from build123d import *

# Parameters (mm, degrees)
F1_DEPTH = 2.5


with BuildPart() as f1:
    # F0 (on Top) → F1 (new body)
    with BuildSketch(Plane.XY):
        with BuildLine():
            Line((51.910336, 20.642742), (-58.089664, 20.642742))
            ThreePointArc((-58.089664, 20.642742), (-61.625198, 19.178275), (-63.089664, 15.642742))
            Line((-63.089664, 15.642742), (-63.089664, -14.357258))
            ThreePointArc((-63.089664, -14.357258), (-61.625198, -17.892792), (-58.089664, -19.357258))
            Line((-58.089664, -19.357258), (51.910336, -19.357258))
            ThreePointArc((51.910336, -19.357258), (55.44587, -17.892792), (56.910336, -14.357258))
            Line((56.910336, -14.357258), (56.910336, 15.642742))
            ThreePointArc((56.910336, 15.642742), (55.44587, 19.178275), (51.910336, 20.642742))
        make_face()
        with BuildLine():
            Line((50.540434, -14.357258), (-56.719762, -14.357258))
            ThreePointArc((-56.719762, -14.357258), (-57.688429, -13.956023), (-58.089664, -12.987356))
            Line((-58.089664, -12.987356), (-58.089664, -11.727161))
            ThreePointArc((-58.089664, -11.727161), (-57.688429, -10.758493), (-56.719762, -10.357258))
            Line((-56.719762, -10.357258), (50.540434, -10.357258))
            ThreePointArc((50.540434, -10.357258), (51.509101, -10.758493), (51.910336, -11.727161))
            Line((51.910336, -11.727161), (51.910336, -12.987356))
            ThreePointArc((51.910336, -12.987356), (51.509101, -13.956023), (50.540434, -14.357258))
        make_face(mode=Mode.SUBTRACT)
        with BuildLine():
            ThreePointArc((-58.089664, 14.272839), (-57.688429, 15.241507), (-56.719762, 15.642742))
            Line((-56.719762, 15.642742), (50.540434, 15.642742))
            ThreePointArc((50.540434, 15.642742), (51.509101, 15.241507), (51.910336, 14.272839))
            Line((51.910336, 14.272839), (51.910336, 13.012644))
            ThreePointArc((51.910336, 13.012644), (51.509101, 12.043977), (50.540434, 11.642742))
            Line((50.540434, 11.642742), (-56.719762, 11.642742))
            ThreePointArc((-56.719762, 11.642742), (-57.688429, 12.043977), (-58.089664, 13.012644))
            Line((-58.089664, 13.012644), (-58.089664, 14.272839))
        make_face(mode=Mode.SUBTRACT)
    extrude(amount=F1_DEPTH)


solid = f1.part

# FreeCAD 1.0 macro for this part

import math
import FreeCAD as App
import Part
import Sketcher

V = App.Vector

doc = App.newDocument("Part")
body = doc.addObject("PartDesign::Body", "Body")

# Sketch on XY plane
sketch1 = body.newObject("Sketcher::SketchObject", "Sketch")
sketch1.AttachmentSupport = (doc.getObject("XY_Plane"), [""])
sketch1.MapMode = "FlatFace"
sketch1.addGeometry([
    Part.LineSegment(V(51.910336, 20.642742, 0), V(-58.089664, 20.642742, 0)),  # 0
    Part.ArcOfCircle(Part.Circle(V(-58.089663, 15.642741, 0), V(0, 0, 1), 5.000001), math.radians(90.000016), math.radians(179.999984)),  # 1
    Part.LineSegment(V(-63.089664, 15.642742, 0), V(-63.089664, -14.357258, 0)),  # 2
    Part.ArcOfCircle(Part.Circle(V(-58.089664, -14.357258, 0), V(0, 0, 1), 5), math.radians(179.999996), math.radians(270.000004)),  # 3
    Part.LineSegment(V(-58.089664, -19.357258, 0), V(51.910336, -19.357258, 0)),  # 4
    Part.ArcOfCircle(Part.Circle(V(51.910336, -14.357258, 0), V(0, 0, 1), 5), math.radians(-90.000004), math.radians(0.000004)),  # 5
    Part.LineSegment(V(56.910336, -14.357258, 0), V(56.910336, 15.642742, 0)),  # 6
    Part.ArcOfCircle(Part.Circle(V(51.910335, 15.642741, 0), V(0, 0, 1), 5.000001), math.radians(0.000016), math.radians(89.999984)),  # 7
    Part.ArcOfCircle(Part.Circle(V(50.540434, -12.987356, 0), V(0, 0, 1), 1.369902), math.radians(-90.000001), math.radians(0.000001)),  # 8
    Part.LineSegment(V(50.540434, -14.357258, 0), V(-56.719762, -14.357258, 0)),  # 9
    Part.ArcOfCircle(Part.Circle(V(-56.719762, -12.987356, 0), V(0, 0, 1), 1.369902), math.radians(179.999999), math.radians(270.000001)),  # 10
    Part.LineSegment(V(-58.089664, -12.987356, 0), V(-58.089664, -11.727161, 0)),  # 11
    Part.ArcOfCircle(Part.Circle(V(-56.719762, -11.72716, 0), V(0, 0, 1), 1.369902), math.radians(89.999999), math.radians(180.000043)),  # 12
    Part.LineSegment(V(-56.719762, -10.357258, 0), V(50.540434, -10.357258, 0)),  # 13
    Part.ArcOfCircle(Part.Circle(V(50.540434, -11.72716, 0), V(0, 0, 1), 1.369902), math.radians(-0.000043), math.radians(90.000001)),  # 14
    Part.LineSegment(V(51.910336, -11.727161, 0), V(51.910336, -12.987356, 0)),  # 15
    Part.LineSegment(V(-58.089664, 13.012644, 0), V(-58.089664, 14.272839, 0)),  # 16
    Part.ArcOfCircle(Part.Circle(V(-56.719762, 14.27284, 0), V(0, 0, 1), 1.369902), math.radians(89.999999), math.radians(180.000043)),  # 17
    Part.LineSegment(V(-56.719762, 15.642742, 0), V(50.540434, 15.642742, 0)),  # 18
    Part.ArcOfCircle(Part.Circle(V(50.540434, 14.27284, 0), V(0, 0, 1), 1.369902), math.radians(-0.000043), math.radians(90.000001)),  # 19
    Part.LineSegment(V(51.910336, 14.272839, 0), V(51.910336, 13.012644, 0)),  # 20
    Part.ArcOfCircle(Part.Circle(V(50.540434, 13.012644, 0), V(0, 0, 1), 1.369902), math.radians(-90.000001), math.radians(0.000001)),  # 21
    Part.LineSegment(V(50.540434, 11.642742, 0), V(-56.719762, 11.642742, 0)),  # 22
    Part.ArcOfCircle(Part.Circle(V(-56.719762, 13.012644, 0), V(0, 0, 1), 1.369902), math.radians(179.999999), math.radians(270.000001)),  # 23
], False)
sketch1.addConstraint([
    Sketcher.Constraint("Tangent", 0, 2, 1, 1),
    Sketcher.Constraint("Tangent", 1, 2, 2, 1),
    Sketcher.Constraint("Tangent", 2, 2, 3, 1),
    Sketcher.Constraint("Tangent", 3, 2, 4, 1),
    Sketcher.Constraint("Tangent", 4, 2, 5, 1),
    Sketcher.Constraint("Tangent", 5, 2, 6, 1),
    Sketcher.Constraint("Tangent", 6, 2, 7, 1),
    Sketcher.Constraint("Tangent", 7, 2, 0, 1),
    Sketcher.Constraint("Tangent", 8, 1, 9, 1),
    Sketcher.Constraint("Tangent", 9, 2, 10, 2),
    Sketcher.Constraint("Tangent", 10, 1, 11, 1),
    Sketcher.Constraint("Tangent", 11, 2, 12, 2),
    Sketcher.Constraint("Tangent", 12, 1, 13, 1),
    Sketcher.Constraint("Tangent", 13, 2, 14, 2),
    Sketcher.Constraint("Tangent", 14, 1, 15, 1),
    Sketcher.Constraint("Tangent", 15, 2, 8, 2),
    Sketcher.Constraint("Tangent", 16, 2, 17, 2),
    Sketcher.Constraint("Tangent", 17, 1, 18, 1),
    Sketcher.Constraint("Tangent", 18, 2, 19, 2),
    Sketcher.Constraint("Tangent", 19, 1, 20, 1),
    Sketcher.Constraint("Tangent", 20, 2, 21, 2),
    Sketcher.Constraint("Tangent", 21, 1, 22, 1),
    Sketcher.Constraint("Tangent", 22, 2, 23, 2),
    Sketcher.Constraint("Tangent", 23, 1, 16, 1),
    Sketcher.Constraint("Horizontal", 0),
    Sketcher.Constraint("Vertical", 2),
    Sketcher.Constraint("Horizontal", 4),
    Sketcher.Constraint("Vertical", 6),
    Sketcher.Constraint("Horizontal", 9),
    Sketcher.Constraint("Vertical", 11),
    Sketcher.Constraint("Horizontal", 13),
    Sketcher.Constraint("Vertical", 15),
    Sketcher.Constraint("Vertical", 16),
    Sketcher.Constraint("Horizontal", 18),
    Sketcher.Constraint("Vertical", 20),
    Sketcher.Constraint("Horizontal", 22),
    Sketcher.Constraint("Equal", 1, 3),
    Sketcher.Constraint("Equal", 3, 5),
    Sketcher.Constraint("Equal", 5, 7),
    Sketcher.Constraint("Equal", 8, 10),
    Sketcher.Constraint("Equal", 10, 12),
    Sketcher.Constraint("Equal", 12, 14),
    Sketcher.Constraint("Equal", 14, 17),
    Sketcher.Constraint("Equal", 17, 19),
    Sketcher.Constraint("Equal", 19, 21),
    Sketcher.Constraint("Equal", 21, 23),
    Sketcher.Constraint("Horizontal", 5, 2, 8, 1),
    Sketcher.Constraint("Horizontal", 6, 2, 17, 1),
    Sketcher.Constraint("Vertical", 12, 3, 17, 3),
    Sketcher.Constraint("Vertical", 14, 3, 19, 3),
    Sketcher.Constraint("Vertical", 3, 2, 10, 1),
    Sketcher.Constraint("Vertical", 7, 2, 14, 1),
    Sketcher.Constraint("Equal", 15, 16),
    Sketcher.Constraint("Radius", 1, 5.000001),
    Sketcher.Constraint("DistanceX", 0, 2, 0, 1, 110.0),
    Sketcher.Constraint("DistanceY", 2, 2, 2, 1, 30.0),
    Sketcher.Constraint("DistanceY", 12, 3, 17, 3, 26.0),
    Sketcher.Constraint("Radius", 8, 1.369902),
    Sketcher.Constraint("DistanceY", -1, 1, 1, 3, 15.642741),
    Sketcher.Constraint("DistanceX", 1, 3, -1, 1, 58.089663),
])
pad1 = body.newObject("PartDesign::Pad", "Pad")
pad1.Profile = sketch1
pad1.Length = 2.5

doc.recompute()
